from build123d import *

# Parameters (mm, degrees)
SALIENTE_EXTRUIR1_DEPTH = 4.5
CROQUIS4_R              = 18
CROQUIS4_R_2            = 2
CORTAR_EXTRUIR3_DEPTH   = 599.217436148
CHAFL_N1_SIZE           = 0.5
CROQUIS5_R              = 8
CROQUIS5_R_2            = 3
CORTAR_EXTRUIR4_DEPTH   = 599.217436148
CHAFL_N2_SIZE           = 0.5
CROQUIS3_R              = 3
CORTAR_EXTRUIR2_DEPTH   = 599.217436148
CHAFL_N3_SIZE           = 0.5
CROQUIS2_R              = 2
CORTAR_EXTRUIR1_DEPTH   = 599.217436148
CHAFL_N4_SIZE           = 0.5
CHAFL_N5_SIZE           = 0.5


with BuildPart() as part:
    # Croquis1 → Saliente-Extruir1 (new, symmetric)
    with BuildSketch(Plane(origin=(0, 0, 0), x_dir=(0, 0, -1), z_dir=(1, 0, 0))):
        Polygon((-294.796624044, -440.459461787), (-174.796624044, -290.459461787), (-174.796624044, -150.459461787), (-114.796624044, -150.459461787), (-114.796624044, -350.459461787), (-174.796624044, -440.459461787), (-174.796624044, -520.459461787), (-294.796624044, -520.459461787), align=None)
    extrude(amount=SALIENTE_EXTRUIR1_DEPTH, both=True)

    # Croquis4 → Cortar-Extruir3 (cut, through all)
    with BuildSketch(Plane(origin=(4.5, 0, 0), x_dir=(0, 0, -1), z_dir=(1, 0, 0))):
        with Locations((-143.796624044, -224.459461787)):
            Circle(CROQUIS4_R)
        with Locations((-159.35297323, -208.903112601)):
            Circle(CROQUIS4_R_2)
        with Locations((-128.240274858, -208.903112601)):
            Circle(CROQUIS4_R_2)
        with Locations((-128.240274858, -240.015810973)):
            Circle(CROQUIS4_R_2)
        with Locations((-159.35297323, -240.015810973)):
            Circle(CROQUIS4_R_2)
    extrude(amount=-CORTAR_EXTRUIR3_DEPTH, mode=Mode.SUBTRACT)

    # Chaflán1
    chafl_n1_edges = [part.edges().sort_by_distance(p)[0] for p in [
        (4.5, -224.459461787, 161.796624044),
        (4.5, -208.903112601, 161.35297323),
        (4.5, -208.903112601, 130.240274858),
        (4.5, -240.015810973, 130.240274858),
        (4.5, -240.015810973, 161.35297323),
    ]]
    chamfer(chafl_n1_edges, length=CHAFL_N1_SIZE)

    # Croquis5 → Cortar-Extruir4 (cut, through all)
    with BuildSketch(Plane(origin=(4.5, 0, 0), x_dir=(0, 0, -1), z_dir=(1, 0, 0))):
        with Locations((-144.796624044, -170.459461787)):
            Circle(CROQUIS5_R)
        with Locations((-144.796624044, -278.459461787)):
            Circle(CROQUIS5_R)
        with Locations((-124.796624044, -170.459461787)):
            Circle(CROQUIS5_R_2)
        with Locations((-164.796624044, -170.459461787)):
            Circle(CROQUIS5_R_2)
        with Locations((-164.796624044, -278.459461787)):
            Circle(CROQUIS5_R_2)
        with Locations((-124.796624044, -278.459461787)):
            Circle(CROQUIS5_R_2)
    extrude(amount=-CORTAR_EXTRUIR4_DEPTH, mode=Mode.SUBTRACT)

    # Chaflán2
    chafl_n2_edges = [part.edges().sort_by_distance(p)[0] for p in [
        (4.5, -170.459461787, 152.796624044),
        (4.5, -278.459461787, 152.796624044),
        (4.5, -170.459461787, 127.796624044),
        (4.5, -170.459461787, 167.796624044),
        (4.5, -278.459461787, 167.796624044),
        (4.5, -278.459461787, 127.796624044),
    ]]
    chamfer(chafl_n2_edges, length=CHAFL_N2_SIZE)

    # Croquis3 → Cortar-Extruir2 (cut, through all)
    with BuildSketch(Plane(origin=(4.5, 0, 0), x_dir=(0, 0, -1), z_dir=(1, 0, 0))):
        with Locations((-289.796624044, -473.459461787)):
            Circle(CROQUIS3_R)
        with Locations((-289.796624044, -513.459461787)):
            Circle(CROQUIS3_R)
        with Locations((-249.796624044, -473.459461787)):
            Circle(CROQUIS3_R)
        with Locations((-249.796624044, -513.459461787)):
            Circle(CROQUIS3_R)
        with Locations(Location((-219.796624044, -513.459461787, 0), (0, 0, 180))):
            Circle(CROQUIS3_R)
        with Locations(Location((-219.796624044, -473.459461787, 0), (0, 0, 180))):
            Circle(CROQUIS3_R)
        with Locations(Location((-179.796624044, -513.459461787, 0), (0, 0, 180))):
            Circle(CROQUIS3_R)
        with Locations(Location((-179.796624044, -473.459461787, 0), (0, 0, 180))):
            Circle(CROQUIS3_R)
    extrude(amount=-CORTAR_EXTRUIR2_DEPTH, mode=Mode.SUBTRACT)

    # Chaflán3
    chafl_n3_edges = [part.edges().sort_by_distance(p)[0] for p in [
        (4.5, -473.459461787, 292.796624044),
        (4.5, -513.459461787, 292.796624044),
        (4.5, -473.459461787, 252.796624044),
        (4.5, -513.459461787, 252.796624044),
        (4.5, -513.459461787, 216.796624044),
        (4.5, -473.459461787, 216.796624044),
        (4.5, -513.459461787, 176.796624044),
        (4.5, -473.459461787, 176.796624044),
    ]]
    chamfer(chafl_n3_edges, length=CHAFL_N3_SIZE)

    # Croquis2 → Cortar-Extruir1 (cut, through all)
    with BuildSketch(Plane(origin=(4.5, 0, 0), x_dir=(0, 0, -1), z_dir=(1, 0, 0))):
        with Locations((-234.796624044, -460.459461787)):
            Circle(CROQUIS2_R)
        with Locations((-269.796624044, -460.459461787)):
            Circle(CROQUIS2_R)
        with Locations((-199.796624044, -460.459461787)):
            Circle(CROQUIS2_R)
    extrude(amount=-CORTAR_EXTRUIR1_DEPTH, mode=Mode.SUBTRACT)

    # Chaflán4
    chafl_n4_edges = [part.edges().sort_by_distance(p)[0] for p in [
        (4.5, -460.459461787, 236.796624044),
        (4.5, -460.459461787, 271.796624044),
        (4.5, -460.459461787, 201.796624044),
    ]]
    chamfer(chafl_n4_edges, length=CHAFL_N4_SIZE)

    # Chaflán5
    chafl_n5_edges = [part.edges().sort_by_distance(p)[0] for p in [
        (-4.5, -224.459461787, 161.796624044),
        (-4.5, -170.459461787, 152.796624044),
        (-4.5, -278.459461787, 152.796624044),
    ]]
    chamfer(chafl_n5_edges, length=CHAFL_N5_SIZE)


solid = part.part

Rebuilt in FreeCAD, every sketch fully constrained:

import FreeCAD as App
import Part
import Sketcher

V = App.Vector


def edges_at(feature, points):
    """Names of the edges that pass closest to the given points."""
    edges = feature.Shape.Edges
    near = lambda p: min(range(len(edges)), key=lambda i: edges[i].distToShape(Part.Vertex(*p))[0])
    return sorted({f"Edge{near(p) + 1}" for p in points})

doc = App.newDocument("Part")
body = doc.addObject("PartDesign::Body", "Body")

sketch1 = doc.addObject("Sketcher::SketchObject", "Sketch")
body.addObject(sketch1)
sketch1.AttachmentSupport = (doc.YZ_Plane, [""])
sketch1.MapMode = "FlatFace"
sketch1.addGeometry([
    Part.LineSegment(V(-290.459462, 174.796624, 0), V(-440.459462, 294.796624, 0)),
    Part.LineSegment(V(-440.459462, 294.796624, 0), V(-520.459462, 294.796624, 0)),
    Part.LineSegment(V(-520.459462, 294.796624, 0), V(-520.459462, 174.796624, 0)),
    Part.LineSegment(V(-520.459462, 174.796624, 0), V(-440.459462, 174.796624, 0)),
    Part.LineSegment(V(-440.459462, 174.796624, 0), V(-350.459462, 114.796624, 0)),
    Part.LineSegment(V(-350.459462, 114.796624, 0), V(-150.459462, 114.796624, 0)),
    Part.LineSegment(V(-150.459462, 114.796624, 0), V(-150.459462, 174.796624, 0)),
    Part.LineSegment(V(-150.459462, 174.796624, 0), V(-290.459462, 174.796624, 0)),
], False)
sketch1.addConstraint([
    Sketcher.Constraint("Coincident", 0, 2, 1, 1),
    Sketcher.Constraint("Coincident", 1, 2, 2, 1),
    Sketcher.Constraint("Coincident", 2, 2, 3, 1),
    Sketcher.Constraint("Coincident", 3, 2, 4, 1),
    Sketcher.Constraint("Coincident", 4, 2, 5, 1),
    Sketcher.Constraint("Coincident", 5, 2, 6, 1),
    Sketcher.Constraint("Coincident", 6, 2, 7, 1),
    Sketcher.Constraint("Coincident", 7, 2, 0, 1),
    Sketcher.Constraint("Horizontal", 1),
    Sketcher.Constraint("Vertical", 2),
    Sketcher.Constraint("Horizontal", 3),
    Sketcher.Constraint("Horizontal", 5),
    Sketcher.Constraint("Vertical", 6),
    Sketcher.Constraint("Horizontal", 7),
    Sketcher.Constraint("Horizontal", 3, 2, 6, 2),
    Sketcher.Constraint("Vertical", 0, 2, 3, 2),
    Sketcher.Constraint("DistanceX", 1, 2, 1, 1, 80.0),
    Sketcher.Constraint("DistanceX", 5, 1, 5, 2, 200.0),
    Sketcher.Constraint("DistanceX", 7, 2, 7, 1, 140.0),
    Sketcher.Constraint("DistanceY", 2, 2, 2, 1, 120.0),
    Sketcher.Constraint("DistanceY", 6, 1, 6, 2, 60.0),
    Sketcher.Constraint("DistanceX", 3, 2, 4, 2, 90.0),
    Sketcher.Constraint("DistanceX", 0, 2, -1, 1, 440.459462),
    Sketcher.Constraint("DistanceY", -1, 1, 0, 2, 294.796624),
])
pad1 = doc.addObject("PartDesign::Pad", "Pad")
body.addObject(pad1)
pad1.Profile = sketch1
pad1.Length = 9
pad1.Midplane = True

sketch2 = doc.addObject("Sketcher::SketchObject", "Sketch001")
body.addObject(sketch2)
sketch2.AttachmentSupport = (doc.YZ_Plane, [""])
sketch2.MapMode = "FlatFace"
sketch2.AttachmentOffset = App.Placement(V(0, 0, 4.5), App.Rotation())
sketch2.addGeometry([
    Part.Circle(V(-224.459462, 143.796624, 0), V(0, 0, 1), 18),
    Part.Circle(V(-208.903113, 159.352973, 0), V(0, 0, 1), 2),
    Part.Circle(V(-208.903113, 128.240275, 0), V(0, 0, 1), 2),
    Part.Circle(V(-240.015811, 128.240275, 0), V(0, 0, 1), 2),
    Part.Circle(V(-240.015811, 159.352973, 0), V(0, 0, 1), 2),
], False)
sketch2.addConstraint([
    Sketcher.Constraint("Equal", 1, 2),
    Sketcher.Constraint("Equal", 2, 3),
    Sketcher.Constraint("Equal", 3, 4),
    Sketcher.Constraint("Horizontal", 2, 3, 3, 3),
    Sketcher.Constraint("Horizontal", 1, 3, 4, 3),
    Sketcher.Constraint("Vertical", 1, 3, 2, 3),
    Sketcher.Constraint("Vertical", 3, 3, 4, 3),
    Sketcher.Constraint("Diameter", 0, 36.0),
    Sketcher.Constraint("Diameter", 1, 4.0),
    Sketcher.Constraint("DistanceY", 2, 3, 1, 3, 31.112698),
    Sketcher.Constraint("DistanceX", 3, 3, 2, 3, 31.112698),
    Sketcher.Constraint("DistanceX", 0, 3, -1, 1, 224.459462),
    Sketcher.Constraint("DistanceX", 3, 3, -1, 1, 240.015811),
    Sketcher.Constraint("DistanceY", 0, 3, 1, 3, 15.556349),
    Sketcher.Constraint("DistanceY", -1, 1, 0, 3, 143.796624),
])
pocket1 = doc.addObject("PartDesign::Pocket", "Pocket")
body.addObject(pocket1)
pocket1.Profile = sketch2
pocket1.Type = "ThroughAll"
doc.recompute()

chamfer = doc.addObject("PartDesign::Chamfer", "Chamfer")
body.addObject(chamfer)
chamfer.Base = (pocket1, edges_at(pocket1, [
    (4.5, -224.459, 161.797),
    (4.5, -208.903, 161.353),
    (4.5, -208.903, 130.24),
    (4.5, -240.016, 130.24),
    (4.5, -240.016, 161.353),
]))
chamfer.Size = 0.5

sketch3 = doc.addObject("Sketcher::SketchObject", "Sketch002")
body.addObject(sketch3)
sketch3.AttachmentSupport = (doc.YZ_Plane, [""])
sketch3.MapMode = "FlatFace"
sketch3.AttachmentOffset = App.Placement(V(0, 0, 4.5), App.Rotation())
sketch3.addGeometry([
    Part.Circle(V(-170.459462, 144.796624, 0), V(0, 0, 1), 8),
    Part.Circle(V(-278.459462, 144.796624, 0), V(0, 0, 1), 8),
    Part.Circle(V(-170.459462, 124.796624, 0), V(0, 0, 1), 3),
    Part.Circle(V(-170.459462, 164.796624, 0), V(0, 0, 1), 3),
    Part.Circle(V(-278.459462, 164.796624, 0), V(0, 0, 1), 3),
    Part.Circle(V(-278.459462, 124.796624, 0), V(0, 0, 1), 3),
], False)
sketch3.addConstraint([
    Sketcher.Constraint("Equal", 0, 1),
    Sketcher.Constraint("Equal", 2, 3),
    Sketcher.Constraint("Equal", 3, 4),
    Sketcher.Constraint("Equal", 4, 5),
    Sketcher.Constraint("Horizontal", 0, 3, 1, 3),
    Sketcher.Constraint("Horizontal", 3, 3, 4, 3),
    Sketcher.Constraint("Horizontal", 2, 3, 5, 3),
    Sketcher.Constraint("Vertical", 0, 3, 2, 3),
    Sketcher.Constraint("Vertical", 2, 3, 3, 3),
    Sketcher.Constraint("Vertical", 1, 3, 4, 3),
    Sketcher.Constraint("Vertical", 4, 3, 5, 3),
    Sketcher.Constraint("Diameter", 0, 16.0),
    Sketcher.Constraint("Diameter", 2, 6.0),
    Sketcher.Constraint("DistanceX", 1, 3, 0, 3, 108.0),
    Sketcher.Constraint("DistanceY", 2, 3, 0, 3, 20.0),
    Sketcher.Constraint("DistanceY", 0, 3, 3, 3, 20.0),
    Sketcher.Constraint("DistanceX", 0, 3, -1, 1, 170.459462),
    Sketcher.Constraint("DistanceY", -1, 1, 0, 3, 144.796624),
])
pocket2 = doc.addObject("PartDesign::Pocket", "Pocket001")
body.addObject(pocket2)
pocket2.Profile = sketch3
pocket2.Type = "ThroughAll"
doc.recompute()

chamfer2 = doc.addObject("PartDesign::Chamfer", "Chamfer001")
body.addObject(chamfer2)
chamfer2.Base = (pocket2, edges_at(pocket2, [
    (4.5, -170.459, 152.797),
    (4.5, -278.459, 152.797),
    (4.5, -170.459, 127.797),
    (4.5, -170.459, 167.797),
    (4.5, -278.459, 167.797),
    (4.5, -278.459, 127.797),
]))
chamfer2.Size = 0.5

sketch4 = doc.addObject("Sketcher::SketchObject", "Sketch003")
body.addObject(sketch4)
sketch4.AttachmentSupport = (doc.YZ_Plane, [""])
sketch4.MapMode = "FlatFace"
sketch4.AttachmentOffset = App.Placement(V(0, 0, 4.5), App.Rotation())
sketch4.addGeometry([
    Part.Circle(V(-473.459462, 289.796624, 0), V(0, 0, 1), 3),
    Part.Circle(V(-513.459462, 289.796624, 0), V(0, 0, 1), 3),
    Part.Circle(V(-473.459462, 249.796624, 0), V(0, 0, 1), 3),
    Part.Circle(V(-513.459462, 249.796624, 0), V(0, 0, 1), 3),
    Part.Circle(V(-513.459462, 219.796624, 0), V(0, 0, 1), 3),
    Part.Circle(V(-473.459462, 219.796624, 0), V(0, 0, 1), 3),
    Part.Circle(V(-513.459462, 179.796624, 0), V(0, 0, 1), 3),
    Part.Circle(V(-473.459462, 179.796624, 0), V(0, 0, 1), 3),
], False)
sketch4.addConstraint([
    Sketcher.Constraint("Equal", 0, 1),
    Sketcher.Constraint("Equal", 1, 2),
    Sketcher.Constraint("Equal", 2, 3),
    Sketcher.Constraint("Equal", 3, 4),
    Sketcher.Constraint("Equal", 4, 5),
    Sketcher.Constraint("Equal", 5, 6),
    Sketcher.Constraint("Equal", 6, 7),
    Sketcher.Constraint("Horizontal", 0, 3, 1, 3),
    Sketcher.Constraint("Horizontal", 2, 3, 3, 3),
    Sketcher.Constraint("Horizontal", 4, 3, 5, 3),
    Sketcher.Constraint("Horizontal", 6, 3, 7, 3),
    Sketcher.Constraint("Vertical", 0, 3, 2, 3),
    Sketcher.Constraint("Vertical", 1, 3, 3, 3),
    Sketcher.Constraint("Vertical", 3, 3, 4, 3),
    Sketcher.Constraint("Vertical", 2, 3, 5, 3),
    Sketcher.Constraint("Vertical", 4, 3, 6, 3),
    Sketcher.Constraint("Vertical", 5, 3, 7, 3),
    Sketcher.Constraint("Diameter", 0, 6.0),
    Sketcher.Constraint("DistanceX", 1, 3, 0, 3, 40.0),
    Sketcher.Constraint("DistanceY", 2, 3, 0, 3, 40.0),
    Sketcher.Constraint("DistanceY", 4, 3, 3, 3, 30.0),
    Sketcher.Constraint("DistanceY", 6, 3, 4, 3, 40.0),
    Sketcher.Constraint("DistanceX", 0, 3, -1, 1, 473.459462),
    Sketcher.Constraint("DistanceY", -1, 1, 0, 3, 289.796624),
])
pocket3 = doc.addObject("PartDesign::Pocket", "Pocket002")
body.addObject(pocket3)
pocket3.Profile = sketch4
pocket3.Type = "ThroughAll"
doc.recompute()

chamfer3 = doc.addObject("PartDesign::Chamfer", "Chamfer002")
body.addObject(chamfer3)
chamfer3.Base = (pocket3, edges_at(pocket3, [
    (4.5, -473.459, 292.797),
    (4.5, -513.459, 292.797),
    (4.5, -473.459, 252.797),
    (4.5, -513.459, 252.797),
    (4.5, -513.459, 216.797),
    (4.5, -473.459, 216.797),
    (4.5, -513.459, 176.797),
    (4.5, -473.459, 176.797),
]))
chamfer3.Size = 0.5

sketch5 = doc.addObject("Sketcher::SketchObject", "Sketch004")
body.addObject(sketch5)
sketch5.AttachmentSupport = (doc.YZ_Plane, [""])
sketch5.MapMode = "FlatFace"
sketch5.AttachmentOffset = App.Placement(V(0, 0, 4.5), App.Rotation())
sketch5.addGeometry([
    Part.Circle(V(-460.459462, 234.796624, 0), V(0, 0, 1), 2),
    Part.Circle(V(-460.459462, 269.796624, 0), V(0, 0, 1), 2),
    Part.Circle(V(-460.459462, 199.796624, 0), V(0, 0, 1), 2),
], False)
sketch5.addConstraint([
    Sketcher.Constraint("Equal", 0, 1),
    Sketcher.Constraint("Equal", 1, 2),
    Sketcher.Constraint("Vertical", 0, 3, 1, 3),
    Sketcher.Constraint("Vertical", 1, 3, 2, 3),
    Sketcher.Constraint("Diameter", 0, 4.0),
    Sketcher.Constraint("DistanceY", 0, 3, 1, 3, 35.0),
    Sketcher.Constraint("DistanceY", 2, 3, 0, 3, 35.0),
    Sketcher.Constraint("DistanceX", 0, 3, -1, 1, 460.459462),
    Sketcher.Constraint("DistanceY", -1, 1, 0, 3, 234.796624),
])
pocket4 = doc.addObject("PartDesign::Pocket", "Pocket003")
body.addObject(pocket4)
pocket4.Profile = sketch5
pocket4.Type = "ThroughAll"
doc.recompute()

chamfer4 = doc.addObject("PartDesign::Chamfer", "Chamfer003")
body.addObject(chamfer4)
chamfer4.Base = (pocket4, edges_at(pocket4, [(4.5, -460.459, 236.797), (4.5, -460.459, 271.797), (4.5, -460.459, 201.797)]))
chamfer4.Size = 0.5
doc.recompute()

chamfer5 = doc.addObject("PartDesign::Chamfer", "Chamfer004")
body.addObject(chamfer5)
chamfer5.Base = (chamfer4, edges_at(chamfer4, [(-4.5, -224.459, 161.797), (-4.5, -170.459, 152.797), (-4.5, -278.459, 152.797)]))
chamfer5.Size = 0.5

doc.recompute()
